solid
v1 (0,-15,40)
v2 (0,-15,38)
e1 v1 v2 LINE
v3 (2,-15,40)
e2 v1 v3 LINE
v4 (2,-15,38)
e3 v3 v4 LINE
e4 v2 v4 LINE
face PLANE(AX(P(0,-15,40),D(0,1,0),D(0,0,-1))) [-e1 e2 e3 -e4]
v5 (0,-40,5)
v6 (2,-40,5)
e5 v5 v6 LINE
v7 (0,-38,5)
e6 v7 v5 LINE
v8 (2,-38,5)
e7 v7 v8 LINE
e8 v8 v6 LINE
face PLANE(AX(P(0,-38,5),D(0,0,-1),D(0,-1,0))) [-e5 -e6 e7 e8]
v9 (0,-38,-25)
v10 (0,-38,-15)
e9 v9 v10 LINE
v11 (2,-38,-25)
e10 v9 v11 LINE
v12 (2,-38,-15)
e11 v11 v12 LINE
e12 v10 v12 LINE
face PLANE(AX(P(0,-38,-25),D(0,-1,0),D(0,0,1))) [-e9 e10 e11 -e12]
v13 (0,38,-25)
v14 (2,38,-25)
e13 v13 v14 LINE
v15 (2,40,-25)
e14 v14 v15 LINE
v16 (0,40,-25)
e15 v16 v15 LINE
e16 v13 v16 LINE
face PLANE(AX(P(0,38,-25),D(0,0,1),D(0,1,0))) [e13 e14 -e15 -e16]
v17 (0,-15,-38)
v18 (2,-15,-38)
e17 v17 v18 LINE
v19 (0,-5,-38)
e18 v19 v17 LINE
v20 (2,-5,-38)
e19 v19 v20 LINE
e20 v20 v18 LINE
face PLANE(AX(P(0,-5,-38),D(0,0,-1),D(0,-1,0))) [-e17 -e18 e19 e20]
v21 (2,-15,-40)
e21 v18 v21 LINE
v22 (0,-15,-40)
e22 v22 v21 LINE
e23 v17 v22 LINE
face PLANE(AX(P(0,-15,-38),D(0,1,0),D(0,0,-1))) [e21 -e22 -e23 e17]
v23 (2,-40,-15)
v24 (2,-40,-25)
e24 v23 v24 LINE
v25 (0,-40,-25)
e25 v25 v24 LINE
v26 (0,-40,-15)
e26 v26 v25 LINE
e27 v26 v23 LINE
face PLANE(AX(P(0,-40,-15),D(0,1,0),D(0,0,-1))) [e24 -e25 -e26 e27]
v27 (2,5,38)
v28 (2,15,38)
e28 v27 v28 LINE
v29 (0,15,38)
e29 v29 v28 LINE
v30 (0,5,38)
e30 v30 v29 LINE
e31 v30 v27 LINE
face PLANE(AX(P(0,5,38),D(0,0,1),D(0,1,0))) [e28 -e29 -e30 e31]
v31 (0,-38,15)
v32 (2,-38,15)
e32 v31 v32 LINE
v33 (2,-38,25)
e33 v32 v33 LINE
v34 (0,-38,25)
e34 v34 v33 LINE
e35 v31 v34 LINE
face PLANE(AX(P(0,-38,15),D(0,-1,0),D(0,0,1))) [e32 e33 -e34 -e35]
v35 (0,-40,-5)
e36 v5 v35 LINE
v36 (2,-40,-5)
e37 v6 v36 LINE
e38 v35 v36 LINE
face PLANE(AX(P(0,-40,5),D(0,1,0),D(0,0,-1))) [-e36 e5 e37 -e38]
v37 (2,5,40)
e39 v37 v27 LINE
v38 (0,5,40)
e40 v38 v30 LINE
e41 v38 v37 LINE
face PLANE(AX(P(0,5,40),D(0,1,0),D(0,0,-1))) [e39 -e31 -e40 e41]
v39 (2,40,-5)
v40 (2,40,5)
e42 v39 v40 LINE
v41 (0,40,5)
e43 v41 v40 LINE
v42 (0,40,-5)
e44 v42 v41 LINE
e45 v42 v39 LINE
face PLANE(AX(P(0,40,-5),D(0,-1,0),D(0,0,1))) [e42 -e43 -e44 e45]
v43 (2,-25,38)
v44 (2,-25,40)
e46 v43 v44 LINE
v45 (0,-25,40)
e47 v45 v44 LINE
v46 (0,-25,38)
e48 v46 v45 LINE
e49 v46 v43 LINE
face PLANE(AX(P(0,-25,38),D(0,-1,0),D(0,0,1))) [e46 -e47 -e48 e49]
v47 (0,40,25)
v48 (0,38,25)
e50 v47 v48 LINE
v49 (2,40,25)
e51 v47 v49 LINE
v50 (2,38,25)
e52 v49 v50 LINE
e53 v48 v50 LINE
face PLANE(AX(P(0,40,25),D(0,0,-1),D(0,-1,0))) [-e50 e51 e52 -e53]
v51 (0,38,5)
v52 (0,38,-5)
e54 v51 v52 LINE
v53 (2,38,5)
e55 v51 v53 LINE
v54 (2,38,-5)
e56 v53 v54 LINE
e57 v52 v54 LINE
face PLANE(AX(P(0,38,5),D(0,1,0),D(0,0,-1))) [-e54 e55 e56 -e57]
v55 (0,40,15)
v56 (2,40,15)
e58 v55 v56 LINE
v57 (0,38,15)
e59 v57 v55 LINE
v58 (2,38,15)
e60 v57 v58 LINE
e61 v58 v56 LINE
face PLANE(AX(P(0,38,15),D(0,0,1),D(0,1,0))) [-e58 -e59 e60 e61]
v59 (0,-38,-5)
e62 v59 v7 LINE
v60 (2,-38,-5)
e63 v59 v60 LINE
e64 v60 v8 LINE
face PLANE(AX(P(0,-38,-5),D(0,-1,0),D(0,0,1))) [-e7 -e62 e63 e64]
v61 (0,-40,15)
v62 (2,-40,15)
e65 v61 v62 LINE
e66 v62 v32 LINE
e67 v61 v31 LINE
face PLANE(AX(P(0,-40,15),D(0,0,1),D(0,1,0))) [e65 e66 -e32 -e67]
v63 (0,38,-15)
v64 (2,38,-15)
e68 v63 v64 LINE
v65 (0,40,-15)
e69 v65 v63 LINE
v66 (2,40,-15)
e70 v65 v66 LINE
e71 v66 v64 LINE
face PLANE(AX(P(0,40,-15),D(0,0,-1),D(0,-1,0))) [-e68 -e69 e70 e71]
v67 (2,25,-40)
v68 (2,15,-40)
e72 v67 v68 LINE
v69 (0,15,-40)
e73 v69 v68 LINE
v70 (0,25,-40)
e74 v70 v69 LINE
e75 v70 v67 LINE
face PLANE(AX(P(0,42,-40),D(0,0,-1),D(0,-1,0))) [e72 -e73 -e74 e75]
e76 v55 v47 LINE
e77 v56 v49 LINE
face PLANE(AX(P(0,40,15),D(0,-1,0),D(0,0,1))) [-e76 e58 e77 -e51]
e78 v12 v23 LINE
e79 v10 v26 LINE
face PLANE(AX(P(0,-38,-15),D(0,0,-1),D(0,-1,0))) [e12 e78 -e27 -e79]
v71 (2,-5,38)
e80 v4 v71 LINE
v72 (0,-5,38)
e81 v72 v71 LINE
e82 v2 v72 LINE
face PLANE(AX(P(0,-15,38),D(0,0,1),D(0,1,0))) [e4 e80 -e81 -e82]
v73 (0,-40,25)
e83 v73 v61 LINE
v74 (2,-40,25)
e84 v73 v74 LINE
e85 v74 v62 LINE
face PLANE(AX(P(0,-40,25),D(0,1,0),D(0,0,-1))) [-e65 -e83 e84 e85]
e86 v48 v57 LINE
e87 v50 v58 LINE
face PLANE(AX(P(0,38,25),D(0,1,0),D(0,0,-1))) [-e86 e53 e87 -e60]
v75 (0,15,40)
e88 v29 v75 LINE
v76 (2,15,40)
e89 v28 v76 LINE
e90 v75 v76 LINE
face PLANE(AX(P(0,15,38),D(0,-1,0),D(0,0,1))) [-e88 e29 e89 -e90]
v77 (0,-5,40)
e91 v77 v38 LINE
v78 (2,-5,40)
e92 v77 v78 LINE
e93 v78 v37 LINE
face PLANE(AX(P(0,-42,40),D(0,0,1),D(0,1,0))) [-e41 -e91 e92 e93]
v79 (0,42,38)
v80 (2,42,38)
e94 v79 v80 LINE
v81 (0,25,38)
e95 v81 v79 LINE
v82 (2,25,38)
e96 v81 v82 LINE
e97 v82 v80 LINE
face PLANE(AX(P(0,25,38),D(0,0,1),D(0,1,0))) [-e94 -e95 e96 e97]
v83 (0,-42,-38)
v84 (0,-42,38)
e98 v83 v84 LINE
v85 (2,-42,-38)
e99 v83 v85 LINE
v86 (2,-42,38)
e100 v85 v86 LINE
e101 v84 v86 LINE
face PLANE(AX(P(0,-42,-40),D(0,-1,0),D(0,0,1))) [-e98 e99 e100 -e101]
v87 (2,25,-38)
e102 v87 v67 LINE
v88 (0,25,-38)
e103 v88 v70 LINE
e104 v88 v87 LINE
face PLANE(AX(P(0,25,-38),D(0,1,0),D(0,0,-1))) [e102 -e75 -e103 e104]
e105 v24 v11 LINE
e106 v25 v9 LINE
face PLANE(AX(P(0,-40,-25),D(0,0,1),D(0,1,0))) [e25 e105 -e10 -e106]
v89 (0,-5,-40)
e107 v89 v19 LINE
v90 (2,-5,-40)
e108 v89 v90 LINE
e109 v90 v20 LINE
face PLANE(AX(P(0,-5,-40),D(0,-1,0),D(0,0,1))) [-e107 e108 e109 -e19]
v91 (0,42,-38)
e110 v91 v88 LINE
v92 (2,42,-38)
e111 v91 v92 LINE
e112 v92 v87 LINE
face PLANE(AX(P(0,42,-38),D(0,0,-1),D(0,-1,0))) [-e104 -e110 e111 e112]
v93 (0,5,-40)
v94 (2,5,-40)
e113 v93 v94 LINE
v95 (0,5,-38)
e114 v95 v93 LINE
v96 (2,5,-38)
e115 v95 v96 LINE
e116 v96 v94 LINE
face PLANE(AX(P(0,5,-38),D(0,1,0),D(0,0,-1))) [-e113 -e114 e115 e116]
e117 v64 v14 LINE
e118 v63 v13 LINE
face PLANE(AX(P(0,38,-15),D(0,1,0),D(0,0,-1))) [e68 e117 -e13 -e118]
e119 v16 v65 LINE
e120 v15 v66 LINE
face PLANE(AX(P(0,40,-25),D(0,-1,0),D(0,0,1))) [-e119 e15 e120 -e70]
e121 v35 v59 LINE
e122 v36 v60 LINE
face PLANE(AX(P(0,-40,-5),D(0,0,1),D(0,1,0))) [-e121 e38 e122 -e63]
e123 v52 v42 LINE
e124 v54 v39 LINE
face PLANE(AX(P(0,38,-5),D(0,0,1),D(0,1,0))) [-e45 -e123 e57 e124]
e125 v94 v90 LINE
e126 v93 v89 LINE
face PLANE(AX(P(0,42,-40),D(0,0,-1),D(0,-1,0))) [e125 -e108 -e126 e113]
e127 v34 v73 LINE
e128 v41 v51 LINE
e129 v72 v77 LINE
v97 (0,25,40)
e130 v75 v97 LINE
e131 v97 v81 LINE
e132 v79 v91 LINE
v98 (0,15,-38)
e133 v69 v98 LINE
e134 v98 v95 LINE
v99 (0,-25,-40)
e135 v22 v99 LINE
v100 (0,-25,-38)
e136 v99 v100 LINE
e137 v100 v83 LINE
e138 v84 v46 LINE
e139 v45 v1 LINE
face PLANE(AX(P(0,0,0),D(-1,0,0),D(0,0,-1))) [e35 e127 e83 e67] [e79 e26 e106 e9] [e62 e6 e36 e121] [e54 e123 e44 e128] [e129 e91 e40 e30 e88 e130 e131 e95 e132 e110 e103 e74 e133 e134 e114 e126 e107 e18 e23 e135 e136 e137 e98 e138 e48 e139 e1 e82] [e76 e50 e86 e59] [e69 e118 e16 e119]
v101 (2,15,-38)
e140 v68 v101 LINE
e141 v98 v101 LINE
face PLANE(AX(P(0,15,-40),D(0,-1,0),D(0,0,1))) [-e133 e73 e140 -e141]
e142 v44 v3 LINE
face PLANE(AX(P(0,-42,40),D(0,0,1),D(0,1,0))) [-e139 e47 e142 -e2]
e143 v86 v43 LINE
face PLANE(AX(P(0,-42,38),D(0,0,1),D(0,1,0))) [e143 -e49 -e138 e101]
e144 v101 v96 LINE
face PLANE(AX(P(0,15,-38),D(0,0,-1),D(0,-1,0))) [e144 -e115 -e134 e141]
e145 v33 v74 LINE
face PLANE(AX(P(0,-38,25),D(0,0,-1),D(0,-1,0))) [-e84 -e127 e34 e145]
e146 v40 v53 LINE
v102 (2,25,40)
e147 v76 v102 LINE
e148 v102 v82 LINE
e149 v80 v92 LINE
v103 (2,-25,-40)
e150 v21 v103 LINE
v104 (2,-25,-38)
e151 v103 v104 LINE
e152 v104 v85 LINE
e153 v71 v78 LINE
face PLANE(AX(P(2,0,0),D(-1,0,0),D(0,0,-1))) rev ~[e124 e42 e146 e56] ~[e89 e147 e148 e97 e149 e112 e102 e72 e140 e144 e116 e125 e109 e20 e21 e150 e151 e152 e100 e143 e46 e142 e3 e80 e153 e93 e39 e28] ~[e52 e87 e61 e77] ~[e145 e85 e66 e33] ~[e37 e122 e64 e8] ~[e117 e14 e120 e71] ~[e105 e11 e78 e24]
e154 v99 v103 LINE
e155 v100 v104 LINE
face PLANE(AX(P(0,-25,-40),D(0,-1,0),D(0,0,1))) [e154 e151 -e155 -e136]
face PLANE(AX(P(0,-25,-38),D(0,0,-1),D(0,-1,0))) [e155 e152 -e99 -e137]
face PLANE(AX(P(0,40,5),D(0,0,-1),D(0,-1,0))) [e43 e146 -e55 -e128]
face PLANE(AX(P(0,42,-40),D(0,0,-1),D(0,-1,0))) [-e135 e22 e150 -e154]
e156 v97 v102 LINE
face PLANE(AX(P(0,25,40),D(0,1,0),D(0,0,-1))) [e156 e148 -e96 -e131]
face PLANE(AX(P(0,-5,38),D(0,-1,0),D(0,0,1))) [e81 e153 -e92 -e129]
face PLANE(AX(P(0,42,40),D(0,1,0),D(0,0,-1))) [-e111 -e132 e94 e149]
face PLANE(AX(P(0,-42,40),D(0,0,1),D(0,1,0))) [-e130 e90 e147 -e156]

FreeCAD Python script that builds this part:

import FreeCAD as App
import Part
import Sketcher
from FreeCAD import Vector


def add_polygon(sketch, points):
    """Adds a closed chain of lines whose ends are joined by coincident constraints."""
    first, n = sketch.GeometryCount, len(points)
    for a, b in zip(points, points[1:] + points[:1]):
        sketch.addGeometry(Part.LineSegment(App.Vector(*a, 0), App.Vector(*b, 0)), False)
    for i in range(n):
        sketch.addConstraint(Sketcher.Constraint("Coincident", first + i, 2, first + (i + 1) % n, 1))

doc = App.newDocument("Part")
body = doc.addObject("PartDesign::Body", "Body")

sketch1 = body.newObject("Sketcher::SketchObject", "Sketch")
sketch1.AttachmentSupport = (doc.getObject("YZ_Plane"), [""])
sketch1.MapMode = "FlatFace"
add_polygon(sketch1, [(42, -40), (42, 40), (-42, 40), (-42, -40)])
sketch1.addConstraint([
    Sketcher.Constraint("Vertical", 0),
    Sketcher.Constraint("Horizontal", 1),
    Sketcher.Constraint("Vertical", 2),
    Sketcher.Constraint("Horizontal", 3),
    Sketcher.Constraint("Symmetric", 0, 2, 2, 2, -1, 1),
    Sketcher.Constraint("DistanceX", 1, 2, 1, 1, 84.0),
    Sketcher.Constraint("DistanceY", 0, 1, 0, 2, 80.0),
])
pad1 = body.newObject("PartDesign::Pad", "Pad")
pad1.Profile = sketch1
pad1.Length = 2

sketch2 = body.newObject("Sketcher::SketchObject", "Sketch001")
sketch2.AttachmentSupport = (doc.getObject("YZ_Plane"), [""])
sketch2.MapMode = "FlatFace"
add_polygon(sketch2, [(-42, 40), (-42, 38), (-25, 38), (-25, 40)])
add_polygon(sketch2, [(-5, 38), (-5, 40), (-15, 40), (-15, 38)])
add_polygon(sketch2, [(15, 38), (15, 40), (5, 40), (5, 38)])
add_polygon(sketch2, [(42, 38), (42, 40), (25, 40), (25, 38)])
add_polygon(sketch2, [(40, 25), (38, 25), (38, 15), (40, 15)])
add_polygon(sketch2, [(40, 5), (38, 5), (38, -5), (40, -5)])
add_polygon(sketch2, [(40, -15), (38, -15), (38, -25), (40, -25)])
add_polygon(sketch2, [(42, -40), (42, -38), (25, -38), (25, -40)])
add_polygon(sketch2, [(15, -40), (15, -38), (5, -38), (5, -40)])
add_polygon(sketch2, [(-5, -40), (-5, -38), (-15, -38), (-15, -40)])
add_polygon(sketch2, [(-25, -40), (-25, -38), (-42, -38), (-42, -40)])
add_polygon(sketch2, [(-40, -25), (-38, -25), (-38, -15), (-40, -15)])
add_polygon(sketch2, [(-38, -5), (-38, 5), (-40, 5), (-40, -5)])
add_polygon(sketch2, [(-40, 25), (-40, 15), (-38, 15), (-38, 25)])
sketch2.addConstraint([
    Sketcher.Constraint("Vertical", 0),
    Sketcher.Constraint("Horizontal", 1),
    Sketcher.Constraint("Vertical", 2),
    Sketcher.Constraint("Horizontal", 3),
    Sketcher.Constraint("Vertical", 4),
    Sketcher.Constraint("Horizontal", 5),
    Sketcher.Constraint("Vertical", 6),
    Sketcher.Constraint("Horizontal", 7),
    Sketcher.Constraint("Vertical", 8),
    Sketcher.Constraint("Horizontal", 9),
    Sketcher.Constraint("Vertical", 10),
    Sketcher.Constraint("Horizontal", 11),
    Sketcher.Constraint("Vertical", 12),
    Sketcher.Constraint("Horizontal", 13),
    Sketcher.Constraint("Vertical", 14),
    Sketcher.Constraint("Horizontal", 15),
    Sketcher.Constraint("Horizontal", 16),
    Sketcher.Constraint("Vertical", 17),
    Sketcher.Constraint("Horizontal", 18),
    Sketcher.Constraint("Vertical", 19),
    Sketcher.Constraint("Horizontal", 20),
    Sketcher.Constraint("Vertical", 21),
    Sketcher.Constraint("Horizontal", 22),
    Sketcher.Constraint("Vertical", 23),
    Sketcher.Constraint("Horizontal", 24),
    Sketcher.Constraint("Vertical", 25),
    Sketcher.Constraint("Horizontal", 26),
    Sketcher.Constraint("Vertical", 27),
    Sketcher.Constraint("Vertical", 28),
    Sketcher.Constraint("Horizontal", 29),
    Sketcher.Constraint("Vertical", 30),
    Sketcher.Constraint("Horizontal", 31),
    Sketcher.Constraint("Vertical", 32),
    Sketcher.Constraint("Horizontal", 33),
    Sketcher.Constraint("Vertical", 34),
    Sketcher.Constraint("Horizontal", 35),
    Sketcher.Constraint("Vertical", 36),
    Sketcher.Constraint("Horizontal", 37),
    Sketcher.Constraint("Vertical", 38),
    Sketcher.Constraint("Horizontal", 39),
    Sketcher.Constraint("Vertical", 40),
    Sketcher.Constraint("Horizontal", 41),
    Sketcher.Constraint("Vertical", 42),
    Sketcher.Constraint("Horizontal", 43),
    Sketcher.Constraint("Horizontal", 44),
    Sketcher.Constraint("Vertical", 45),
    Sketcher.Constraint("Horizontal", 46),
    Sketcher.Constraint("Vertical", 47),
    Sketcher.Constraint("Vertical", 48),
    Sketcher.Constraint("Horizontal", 49),
    Sketcher.Constraint("Vertical", 50),
    Sketcher.Constraint("Horizontal", 51),
    Sketcher.Constraint("Vertical", 52),
    Sketcher.Constraint("Horizontal", 53),
    Sketcher.Constraint("Vertical", 54),
    Sketcher.Constraint("Horizontal", 55),
    Sketcher.Constraint("Symmetric", 0, 2, 28, 2, -1, 1),
    Sketcher.Constraint("Symmetric", 2, 2, 30, 2, -1, 1),
    Sketcher.Constraint("Symmetric", 6, 2, 32, 2, -1, 1),
    Sketcher.Constraint("Symmetric", 4, 2, 34, 2, -1, 1),
    Sketcher.Constraint("Symmetric", 10, 2, 36, 2, -1, 1),
    Sketcher.Constraint("Symmetric", 8, 2, 38, 2, -1, 1),
    Sketcher.Constraint("Symmetric", 14, 2, 40, 2, -1, 1),
    Sketcher.Constraint("Symmetric", 12, 2, 42, 2, -1, 1),
    Sketcher.Constraint("Symmetric", 16, 2, 44, 2, -1, 1),
    Sketcher.Constraint("Symmetric", 18, 2, 46, 2, -1, 1),
    Sketcher.Constraint("Symmetric", 21, 2, 48, 2, -1, 1),
    Sketcher.Constraint("Symmetric", 23, 2, 50, 2, -1, 1),
    Sketcher.Constraint("Symmetric", 27, 2, 52, 2, -1, 1),
    Sketcher.Constraint("Symmetric", 25, 2, 54, 2, -1, 1),
    Sketcher.Constraint("Symmetric", 5, 2, 8, 2, -2),
    Sketcher.Constraint("Symmetric", 7, 2, 10, 2, -2),
    Sketcher.Constraint("Symmetric", 3, 2, 12, 2, -2),
    Sketcher.Constraint("Symmetric", 1, 2, 14, 2, -2),
    Sketcher.Constraint("Symmetric", 25, 2, 44, 2, -2),
    Sketcher.Constraint("Symmetric", 27, 2, 46, 2, -2),
    Sketcher.Constraint("Horizontal", 3, 2, 4, 2),
    Sketcher.Constraint("Horizontal", 1, 2, 6, 2),
    Sketcher.Constraint("Horizontal", 23, 2, 48, 2),
    Sketcher.Constraint("Vertical", 17, 2, 20, 2),
    Sketcher.Constraint("Vertical", 19, 2, 22, 2),
    Sketcher.Constraint("Equal", 55, 0),
    Sketcher.Constraint("Equal", 39, 17),
    Sketcher.Constraint("Equal", 19, 21),
    Sketcher.Constraint("DistanceX", 1, 1, 1, 2, 17.0),
    Sketcher.Constraint("DistanceX", 5, 2, 5, 1, 10.0),
    Sketcher.Constraint("DistanceX", 16, 2, 16, 1, 2.0),
    Sketcher.Constraint("DistanceX", 0, 2, -1, 1, 42.0),
    Sketcher.Constraint("DistanceY", -1, 1, 0, 2, 38.0),
    Sketcher.Constraint("DistanceX", 4, 2, -1, 1, 5.0),
    Sketcher.Constraint("DistanceX", -1, 1, 16, 2, 38.0),
    Sketcher.Constraint("DistanceY", -1, 1, 16, 2, 25.0),
])
pocket1 = body.newObject("PartDesign::Pocket", "Pocket")
pocket1.Profile = sketch2
pocket1.Length = 2
pocket1.Reversed = True

doc.recompute()
